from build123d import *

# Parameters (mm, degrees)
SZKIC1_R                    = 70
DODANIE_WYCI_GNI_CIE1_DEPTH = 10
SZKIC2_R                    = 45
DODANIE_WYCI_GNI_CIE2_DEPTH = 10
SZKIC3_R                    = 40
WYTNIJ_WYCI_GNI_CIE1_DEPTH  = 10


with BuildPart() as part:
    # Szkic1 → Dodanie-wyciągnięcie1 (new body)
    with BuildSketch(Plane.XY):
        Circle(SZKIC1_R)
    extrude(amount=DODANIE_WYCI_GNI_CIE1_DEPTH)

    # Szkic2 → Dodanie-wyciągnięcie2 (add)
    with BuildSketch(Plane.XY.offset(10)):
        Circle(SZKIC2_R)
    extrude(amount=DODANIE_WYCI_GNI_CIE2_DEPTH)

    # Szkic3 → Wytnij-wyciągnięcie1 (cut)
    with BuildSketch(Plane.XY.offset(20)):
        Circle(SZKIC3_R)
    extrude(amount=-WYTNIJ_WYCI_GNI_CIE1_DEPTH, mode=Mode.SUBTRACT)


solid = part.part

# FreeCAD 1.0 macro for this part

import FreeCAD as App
import Part
import Sketcher
Q = App.Units.Quantity

doc = App.newDocument("Part")
body = doc.addObject("PartDesign::Body", "Body")

# Sketch on XY plane
sketch1 = doc.addObject("Sketcher::SketchObject", "Sketch")
body.addObject(sketch1)
sketch1.AttachmentSupport = (doc.XY_Plane, [""])
sketch1.MapMode = "FlatFace"
sketch1.addGeometry(Part.Circle(App.Vector(0, 0, 0), App.Vector(0, 0, 1), 70), False)
sketch1.addConstraint([
    Sketcher.Constraint("Coincident", 0, 3, -1, 1),
    Sketcher.Constraint("Diameter", 0, Q("140 mm")),
])
pad1 = doc.addObject("PartDesign::Pad", "Pad")
body.addObject(pad1)
pad1.Profile = sketch1
pad1.Length = 10

# Sketch on XY plane
sketch2 = doc.addObject("Sketcher::SketchObject", "Sketch001")
body.addObject(sketch2)
sketch2.AttachmentSupport = (doc.XY_Plane, [""])
sketch2.MapMode = "FlatFace"
sketch2.AttachmentOffset = App.Placement(App.Vector(0, 0, 10), App.Rotation())
sketch2.addGeometry(Part.Circle(App.Vector(0, 0, 0), App.Vector(0, 0, 1), 45), False)
sketch2.addConstraint([
    Sketcher.Constraint("Coincident", 0, 3, -1, 1),
    Sketcher.Constraint("Diameter", 0, Q("90 mm")),
])
pad2 = doc.addObject("PartDesign::Pad", "Pad001")
body.addObject(pad2)
pad2.Profile = sketch2
pad2.Length = 10

# Sketch on XY plane
sketch3 = doc.addObject("Sketcher::SketchObject", "Sketch002")
body.addObject(sketch3)
sketch3.AttachmentSupport = (doc.XY_Plane, [""])
sketch3.MapMode = "FlatFace"
sketch3.AttachmentOffset = App.Placement(App.Vector(0, 0, 20), App.Rotation())
sketch3.addGeometry(Part.Circle(App.Vector(0, 0, 0), App.Vector(0, 0, 1), 40), False)
sketch3.addConstraint([
    Sketcher.Constraint("Coincident", 0, 3, -1, 1),
    Sketcher.Constraint("Diameter", 0, Q("80 mm")),
])
pocket1 = doc.addObject("PartDesign::Pocket", "Pocket")
body.addObject(pocket1)
pocket1.Profile = sketch3
pocket1.Length = 10

doc.recompute()
